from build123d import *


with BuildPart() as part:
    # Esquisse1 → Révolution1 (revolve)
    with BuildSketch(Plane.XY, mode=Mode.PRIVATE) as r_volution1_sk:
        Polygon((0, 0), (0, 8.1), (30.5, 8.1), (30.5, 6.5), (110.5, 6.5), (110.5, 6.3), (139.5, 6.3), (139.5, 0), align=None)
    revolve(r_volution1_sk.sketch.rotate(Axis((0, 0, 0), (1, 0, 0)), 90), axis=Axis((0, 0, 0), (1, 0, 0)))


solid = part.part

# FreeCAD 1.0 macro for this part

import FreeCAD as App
import Part
import Sketcher
from FreeCAD import Vector

doc = App.newDocument("Part")
body = doc.addObject("PartDesign::Body", "Body")

# Sketch on XY plane
sketch1 = body.newObject("Sketcher::SketchObject", "Sketch")
sketch1.AttachmentSupport = (doc.getObject("XY_Plane"), [""])
sketch1.MapMode = "FlatFace"
sketch1.addGeometry(Part.LineSegment(Vector(0, 8.1, 0), Vector(0, 0, 0)), False)
sketch1.addGeometry(Part.LineSegment(Vector(0, 0, 0), Vector(139.5, 0, 0)), False)
sketch1.addGeometry(Part.LineSegment(Vector(139.5, 0, 0), Vector(139.5, 6.3, 0)), False)
sketch1.addGeometry(Part.LineSegment(Vector(139.5, 6.3, 0), Vector(110.5, 6.3, 0)), False)
sketch1.addGeometry(Part.LineSegment(Vector(110.5, 6.3, 0), Vector(110.5, 6.5, 0)), False)
sketch1.addGeometry(Part.LineSegment(Vector(110.5, 6.5, 0), Vector(30.5, 6.5, 0)), False)
sketch1.addGeometry(Part.LineSegment(Vector(30.5, 6.5, 0), Vector(30.5, 8.1, 0)), False)
sketch1.addGeometry(Part.LineSegment(Vector(30.5, 8.1, 0), Vector(0, 8.1, 0)), False)
sketch1.addConstraint(Sketcher.Constraint("Coincident", 0, 2, 1, 1))
sketch1.addConstraint(Sketcher.Constraint("Coincident", 1, 2, 2, 1))
sketch1.addConstraint(Sketcher.Constraint("Coincident", 2, 2, 3, 1))
sketch1.addConstraint(Sketcher.Constraint("Coincident", 3, 2, 4, 1))
sketch1.addConstraint(Sketcher.Constraint("Coincident", 4, 2, 5, 1))
sketch1.addConstraint(Sketcher.Constraint("Coincident", 5, 2, 6, 1))
sketch1.addConstraint(Sketcher.Constraint("Coincident", 6, 2, 7, 1))
sketch1.addConstraint(Sketcher.Constraint("Coincident", 7, 2, 0, 1))
sketch1.addConstraint(Sketcher.Constraint("Vertical", 0))
sketch1.addConstraint(Sketcher.Constraint("Horizontal", 1))
sketch1.addConstraint(Sketcher.Constraint("Vertical", 2))
sketch1.addConstraint(Sketcher.Constraint("Horizontal", 3))
sketch1.addConstraint(Sketcher.Constraint("Vertical", 4))
sketch1.addConstraint(Sketcher.Constraint("Horizontal", 5))
sketch1.addConstraint(Sketcher.Constraint("Vertical", 6))
sketch1.addConstraint(Sketcher.Constraint("Horizontal", 7))
sketch1.addConstraint(Sketcher.Constraint("Coincident", 0, 2, -1, 1))
sketch1.addConstraint(Sketcher.Constraint("DistanceX", 3, 2, 3, 1, 29.0))
sketch1.addConstraint(Sketcher.Constraint("DistanceX", 5, 2, 5, 1, 80.0))
sketch1.addConstraint(Sketcher.Constraint("DistanceX", 1, 1, 1, 2, 139.5))
sketch1.addConstraint(Sketcher.Constraint("DistanceY", 0, 2, 0, 1, 8.1))
sketch1.addConstraint(Sketcher.Constraint("DistanceY", 2, 1, 2, 2, 6.3))
sketch1.addConstraint(Sketcher.Constraint("DistanceY", 4, 1, 4, 2, 0.2))
revolution = body.newObject("PartDesign::Revolution", "Revolution")
revolution.Profile = sketch1
revolution.ReferenceAxis = (sketch1, ["H_Axis"])
revolution.Angle = 360

doc.recompute()
